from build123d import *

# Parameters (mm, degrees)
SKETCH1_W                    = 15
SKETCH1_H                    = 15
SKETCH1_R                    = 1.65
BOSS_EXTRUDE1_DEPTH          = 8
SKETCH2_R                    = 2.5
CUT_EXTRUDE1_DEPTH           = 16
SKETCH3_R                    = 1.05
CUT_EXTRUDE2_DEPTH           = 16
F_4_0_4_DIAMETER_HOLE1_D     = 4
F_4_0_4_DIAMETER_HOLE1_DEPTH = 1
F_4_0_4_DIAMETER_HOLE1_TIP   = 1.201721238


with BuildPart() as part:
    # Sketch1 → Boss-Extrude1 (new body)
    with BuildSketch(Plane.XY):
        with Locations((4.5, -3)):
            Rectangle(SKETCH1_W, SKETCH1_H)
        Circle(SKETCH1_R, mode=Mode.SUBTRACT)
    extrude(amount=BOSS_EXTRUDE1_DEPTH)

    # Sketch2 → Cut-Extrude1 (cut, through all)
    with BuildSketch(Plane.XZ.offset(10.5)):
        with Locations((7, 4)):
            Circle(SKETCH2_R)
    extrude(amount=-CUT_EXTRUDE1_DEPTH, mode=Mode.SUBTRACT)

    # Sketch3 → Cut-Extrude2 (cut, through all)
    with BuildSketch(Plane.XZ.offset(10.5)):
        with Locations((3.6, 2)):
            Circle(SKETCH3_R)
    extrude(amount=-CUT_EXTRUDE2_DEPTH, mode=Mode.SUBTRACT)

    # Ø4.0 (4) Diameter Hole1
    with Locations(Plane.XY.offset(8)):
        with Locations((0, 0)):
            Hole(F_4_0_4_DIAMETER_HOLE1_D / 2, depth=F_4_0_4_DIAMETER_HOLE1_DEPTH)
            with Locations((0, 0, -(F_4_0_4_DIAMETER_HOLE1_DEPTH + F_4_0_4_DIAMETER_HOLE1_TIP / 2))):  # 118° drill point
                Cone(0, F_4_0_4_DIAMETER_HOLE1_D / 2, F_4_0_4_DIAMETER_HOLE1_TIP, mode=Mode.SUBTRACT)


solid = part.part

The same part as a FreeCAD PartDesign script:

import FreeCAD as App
import Part
import Sketcher
Q = App.Units.Quantity

doc = App.newDocument("Part")
body = doc.addObject("PartDesign::Body", "Body")

# Sketch on XY plane
sketch1 = body.newObject("Sketcher::SketchObject", "Sketch")
sketch1.AttachmentSupport = (doc.getObject("XY_Plane"), [""])
sketch1.MapMode = "FlatFace"
sketch1.addGeometry(Part.LineSegment(App.Vector(-3, 4.5, 0), App.Vector(-3, -10.5, 0)), False)
sketch1.addGeometry(Part.LineSegment(App.Vector(-3, -10.5, 0), App.Vector(12, -10.5, 0)), False)
sketch1.addGeometry(Part.LineSegment(App.Vector(12, -10.5, 0), App.Vector(12, 4.5, 0)), False)
sketch1.addGeometry(Part.LineSegment(App.Vector(12, 4.5, 0), App.Vector(-3, 4.5, 0)), False)
sketch1.addGeometry(Part.Circle(App.Vector(0, 0, 0), App.Vector(0, 0, 1), 1.65), False)
sketch1.addConstraint(Sketcher.Constraint("Coincident", 0, 2, 1, 1))
sketch1.addConstraint(Sketcher.Constraint("Coincident", 1, 2, 2, 1))
sketch1.addConstraint(Sketcher.Constraint("Coincident", 2, 2, 3, 1))
sketch1.addConstraint(Sketcher.Constraint("Coincident", 3, 2, 0, 1))
sketch1.addConstraint(Sketcher.Constraint("Vertical", 0))
sketch1.addConstraint(Sketcher.Constraint("Horizontal", 1))
sketch1.addConstraint(Sketcher.Constraint("Vertical", 2))
sketch1.addConstraint(Sketcher.Constraint("Horizontal", 3))
sketch1.addConstraint(Sketcher.Constraint("Coincident", 4, 3, -1, 1))
sketch1.addConstraint(Sketcher.Constraint("Equal", 3, 0))
sketch1.addConstraint(Sketcher.Constraint("Diameter", 4, Q("3.3 mm")))
sketch1.addConstraint(Sketcher.Constraint("DistanceX", 1, 1, 1, 2, Q("15 mm")))
sketch1.addConstraint(Sketcher.Constraint("DistanceX", 0, 2, -1, 1, Q("3 mm")))
sketch1.addConstraint(Sketcher.Constraint("DistanceY", 0, 2, -1, 1, Q("10.5 mm")))
pad1 = body.newObject("PartDesign::Pad", "Pad")
pad1.Profile = sketch1
pad1.Length = 8

# Sketch on XZ plane
sketch2 = body.newObject("Sketcher::SketchObject", "Sketch001")
sketch2.AttachmentSupport = (doc.getObject("XZ_Plane"), [""])
sketch2.MapMode = "FlatFace"
sketch2.AttachmentOffset = App.Placement(App.Vector(0, 0, 10.5), App.Rotation())
sketch2.addGeometry(Part.Circle(App.Vector(7, 4, 0), App.Vector(0, 0, 1), 2.5), False)
sketch2.addConstraint(Sketcher.Constraint("Diameter", 0, Q("5 mm")))
sketch2.addConstraint(Sketcher.Constraint("DistanceX", -1, 1, 0, 3, Q("7 mm")))
sketch2.addConstraint(Sketcher.Constraint("DistanceY", -1, 1, 0, 3, Q("4 mm")))
pocket1 = body.newObject("PartDesign::Pocket", "Pocket")
pocket1.Profile = sketch2
pocket1.Type = "ThroughAll"

# Sketch on XZ plane
sketch3 = body.newObject("Sketcher::SketchObject", "Sketch002")
sketch3.AttachmentSupport = (doc.getObject("XZ_Plane"), [""])
sketch3.MapMode = "FlatFace"
sketch3.AttachmentOffset = App.Placement(App.Vector(0, 0, 10.5), App.Rotation())
sketch3.addGeometry(Part.Circle(App.Vector(3.6, 2, 0), App.Vector(0, 0, 1), 1.05), False)
sketch3.addConstraint(Sketcher.Constraint("Diameter", 0, Q("2.1 mm")))
sketch3.addConstraint(Sketcher.Constraint("DistanceY", -1, 1, 0, 3, Q("2 mm")))
sketch3.addConstraint(Sketcher.Constraint("DistanceX", -1, 1, 0, 3, Q("3.6 mm")))
pocket2 = body.newObject("PartDesign::Pocket", "Pocket001")
pocket2.Profile = sketch3
pocket2.Type = "ThroughAll"

# Sketch on XY plane
sketch4 = body.newObject("Sketcher::SketchObject", "Sketch003")
sketch4.AttachmentSupport = (doc.getObject("XY_Plane"), [""])
sketch4.MapMode = "FlatFace"
sketch4.AttachmentOffset = App.Placement(App.Vector(0, 0, 8), App.Rotation())
sketch4.addGeometry(Part.Circle(App.Vector(0, 0, 0), App.Vector(0, 0, 1), 2), False)
sketch4.addConstraint(Sketcher.Constraint("Coincident", 0, 3, -1, 1))
sketch4.addConstraint(Sketcher.Constraint("Diameter", 0, Q("4 mm")))
doc.recompute()
hole = body.newObject("PartDesign::Hole", "Hole")
hole.Profile = sketch4
hole.ThreadType = "None"
hole.Diameter = 4
hole.DepthType = "Dimension"
hole.Depth = 1
hole.DrillPoint = "Angled"
hole.DrillPointAngle = 118

doc.recompute()
